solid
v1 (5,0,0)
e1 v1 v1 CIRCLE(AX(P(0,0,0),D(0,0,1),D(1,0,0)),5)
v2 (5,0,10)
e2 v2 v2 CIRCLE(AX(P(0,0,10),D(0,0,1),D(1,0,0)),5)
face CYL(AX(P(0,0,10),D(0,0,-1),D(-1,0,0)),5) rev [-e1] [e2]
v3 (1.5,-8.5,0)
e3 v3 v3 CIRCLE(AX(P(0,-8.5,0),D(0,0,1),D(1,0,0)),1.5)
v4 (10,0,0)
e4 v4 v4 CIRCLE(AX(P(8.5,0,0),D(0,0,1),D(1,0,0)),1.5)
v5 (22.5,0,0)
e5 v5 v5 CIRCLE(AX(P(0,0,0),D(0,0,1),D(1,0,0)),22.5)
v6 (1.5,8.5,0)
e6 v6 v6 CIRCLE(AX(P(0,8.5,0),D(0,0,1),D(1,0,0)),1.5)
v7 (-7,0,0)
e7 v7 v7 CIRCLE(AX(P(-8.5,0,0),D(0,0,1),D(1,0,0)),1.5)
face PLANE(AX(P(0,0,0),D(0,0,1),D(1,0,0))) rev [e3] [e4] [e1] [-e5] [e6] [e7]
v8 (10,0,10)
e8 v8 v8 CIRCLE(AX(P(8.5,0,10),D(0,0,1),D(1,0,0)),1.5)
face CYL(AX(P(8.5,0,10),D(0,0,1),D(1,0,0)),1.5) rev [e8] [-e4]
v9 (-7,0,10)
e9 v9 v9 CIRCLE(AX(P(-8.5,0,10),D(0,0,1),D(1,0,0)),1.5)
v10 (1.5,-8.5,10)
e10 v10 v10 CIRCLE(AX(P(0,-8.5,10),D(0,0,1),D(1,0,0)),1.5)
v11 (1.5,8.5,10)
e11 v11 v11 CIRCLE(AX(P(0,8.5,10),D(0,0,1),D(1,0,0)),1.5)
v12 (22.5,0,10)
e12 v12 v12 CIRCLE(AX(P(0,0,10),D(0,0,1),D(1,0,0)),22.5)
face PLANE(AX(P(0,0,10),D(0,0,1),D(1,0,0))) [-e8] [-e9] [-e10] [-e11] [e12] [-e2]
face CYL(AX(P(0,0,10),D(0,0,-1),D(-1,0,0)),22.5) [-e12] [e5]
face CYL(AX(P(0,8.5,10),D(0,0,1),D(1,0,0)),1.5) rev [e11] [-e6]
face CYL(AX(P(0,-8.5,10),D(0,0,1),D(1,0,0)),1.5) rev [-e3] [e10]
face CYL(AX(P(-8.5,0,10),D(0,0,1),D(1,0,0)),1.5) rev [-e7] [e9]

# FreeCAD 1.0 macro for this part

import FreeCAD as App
import Part
import Sketcher
from FreeCAD import Vector

doc = App.newDocument("Part")
params = doc.addObject("Spreadsheet::Sheet", "Params")
for row, (alias, value) in enumerate([
    ("sketch1_diameter", "45 mm"),
    ("sketch1_diameter2", "10 mm"),
    ("pad1_length", "10 mm"),
    ("sketch2_diameter", "3 mm"),
    ("hole_diameter", "3 mm"),
], start=1):
    params.set(f"A{row}", alias)
    params.set(f"B{row}", "=" + value)
    params.setAlias(f"B{row}", alias)

body = doc.addObject("PartDesign::Body", "Body")

sketch1 = body.newObject("Sketcher::SketchObject", "Sketch")
sketch1.AttachmentSupport = (doc.getObject("XY_Plane"), [""])
sketch1.MapMode = "FlatFace"
sketch1.addGeometry([
    Part.Circle(Vector(0, 0, 0), Vector(0, 0, 1), 22.5),
    Part.Circle(Vector(0, 0, 0), Vector(0, 0, 1), 5),
], False)
sketch1.addConstraint([
    Sketcher.Constraint("Coincident", 0, 3, -1, 1),
    Sketcher.Constraint("Coincident", 1, 3, -1, 1),
    Sketcher.Constraint("Diameter", 0, 45.0),
    Sketcher.Constraint("Diameter", 1, 10.0),
])
sketch1.setExpression("Constraints[2]", "Params.sketch1_diameter")
sketch1.setExpression("Constraints[3]", "Params.sketch1_diameter2")
pad1 = body.newObject("PartDesign::Pad", "Pad")
pad1.Profile = sketch1
pad1.setExpression("Length", "Params.pad1_length")

sketch2 = body.newObject("Sketcher::SketchObject", "Sketch001")
sketch2.AttachmentSupport = (doc.getObject("XY_Plane"), [""])
sketch2.MapMode = "FlatFace"
sketch2.AttachmentOffset = App.Placement(Vector(0, 0, 10), App.Rotation())
sketch2.addGeometry([
    Part.Circle(Vector(0, 8.5, 0), Vector(0, 0, 1), 1.5),
    Part.Circle(Vector(8.5, 0, 0), Vector(0, 0, 1), 1.5),
    Part.Circle(Vector(0, -8.5, 0), Vector(0, 0, 1), 1.5),
    Part.Circle(Vector(-8.5, 0, 0), Vector(0, 0, 1), 1.5),
    Part.Circle(Vector(0, 0, 0), Vector(0, 0, 1), 1.5),
], False)
sketch2.addConstraint([
    Sketcher.Constraint("Coincident", 4, 3, -1, 1),
    Sketcher.Constraint("Equal", 0, 1),
    Sketcher.Constraint("Equal", 1, 2),
    Sketcher.Constraint("Equal", 2, 3),
    Sketcher.Constraint("Equal", 3, 4),
    Sketcher.Constraint("Symmetric", 0, 3, 2, 3, -1, 1),
    Sketcher.Constraint("Symmetric", 1, 3, 3, 3, -1, 1),
    Sketcher.Constraint("PointOnObject", 0, 3, -2),
    Sketcher.Constraint("PointOnObject", 1, 3, -1),
    Sketcher.Constraint("Diameter", 0, 3.0),
    Sketcher.Constraint("DistanceY", 2, 3, 0, 3, 17.0),
    Sketcher.Constraint("DistanceX", 3, 3, 1, 3, 17.0),
])
sketch2.setExpression("Constraints[9]", "Params.sketch2_diameter")
doc.recompute()
hole = body.newObject("PartDesign::Hole", "Hole")
hole.Profile = sketch2
hole.ThreadType = "None"
hole.setExpression("Diameter", "Params.hole_diameter")
hole.DepthType = "ThroughAll"

doc.recompute()
